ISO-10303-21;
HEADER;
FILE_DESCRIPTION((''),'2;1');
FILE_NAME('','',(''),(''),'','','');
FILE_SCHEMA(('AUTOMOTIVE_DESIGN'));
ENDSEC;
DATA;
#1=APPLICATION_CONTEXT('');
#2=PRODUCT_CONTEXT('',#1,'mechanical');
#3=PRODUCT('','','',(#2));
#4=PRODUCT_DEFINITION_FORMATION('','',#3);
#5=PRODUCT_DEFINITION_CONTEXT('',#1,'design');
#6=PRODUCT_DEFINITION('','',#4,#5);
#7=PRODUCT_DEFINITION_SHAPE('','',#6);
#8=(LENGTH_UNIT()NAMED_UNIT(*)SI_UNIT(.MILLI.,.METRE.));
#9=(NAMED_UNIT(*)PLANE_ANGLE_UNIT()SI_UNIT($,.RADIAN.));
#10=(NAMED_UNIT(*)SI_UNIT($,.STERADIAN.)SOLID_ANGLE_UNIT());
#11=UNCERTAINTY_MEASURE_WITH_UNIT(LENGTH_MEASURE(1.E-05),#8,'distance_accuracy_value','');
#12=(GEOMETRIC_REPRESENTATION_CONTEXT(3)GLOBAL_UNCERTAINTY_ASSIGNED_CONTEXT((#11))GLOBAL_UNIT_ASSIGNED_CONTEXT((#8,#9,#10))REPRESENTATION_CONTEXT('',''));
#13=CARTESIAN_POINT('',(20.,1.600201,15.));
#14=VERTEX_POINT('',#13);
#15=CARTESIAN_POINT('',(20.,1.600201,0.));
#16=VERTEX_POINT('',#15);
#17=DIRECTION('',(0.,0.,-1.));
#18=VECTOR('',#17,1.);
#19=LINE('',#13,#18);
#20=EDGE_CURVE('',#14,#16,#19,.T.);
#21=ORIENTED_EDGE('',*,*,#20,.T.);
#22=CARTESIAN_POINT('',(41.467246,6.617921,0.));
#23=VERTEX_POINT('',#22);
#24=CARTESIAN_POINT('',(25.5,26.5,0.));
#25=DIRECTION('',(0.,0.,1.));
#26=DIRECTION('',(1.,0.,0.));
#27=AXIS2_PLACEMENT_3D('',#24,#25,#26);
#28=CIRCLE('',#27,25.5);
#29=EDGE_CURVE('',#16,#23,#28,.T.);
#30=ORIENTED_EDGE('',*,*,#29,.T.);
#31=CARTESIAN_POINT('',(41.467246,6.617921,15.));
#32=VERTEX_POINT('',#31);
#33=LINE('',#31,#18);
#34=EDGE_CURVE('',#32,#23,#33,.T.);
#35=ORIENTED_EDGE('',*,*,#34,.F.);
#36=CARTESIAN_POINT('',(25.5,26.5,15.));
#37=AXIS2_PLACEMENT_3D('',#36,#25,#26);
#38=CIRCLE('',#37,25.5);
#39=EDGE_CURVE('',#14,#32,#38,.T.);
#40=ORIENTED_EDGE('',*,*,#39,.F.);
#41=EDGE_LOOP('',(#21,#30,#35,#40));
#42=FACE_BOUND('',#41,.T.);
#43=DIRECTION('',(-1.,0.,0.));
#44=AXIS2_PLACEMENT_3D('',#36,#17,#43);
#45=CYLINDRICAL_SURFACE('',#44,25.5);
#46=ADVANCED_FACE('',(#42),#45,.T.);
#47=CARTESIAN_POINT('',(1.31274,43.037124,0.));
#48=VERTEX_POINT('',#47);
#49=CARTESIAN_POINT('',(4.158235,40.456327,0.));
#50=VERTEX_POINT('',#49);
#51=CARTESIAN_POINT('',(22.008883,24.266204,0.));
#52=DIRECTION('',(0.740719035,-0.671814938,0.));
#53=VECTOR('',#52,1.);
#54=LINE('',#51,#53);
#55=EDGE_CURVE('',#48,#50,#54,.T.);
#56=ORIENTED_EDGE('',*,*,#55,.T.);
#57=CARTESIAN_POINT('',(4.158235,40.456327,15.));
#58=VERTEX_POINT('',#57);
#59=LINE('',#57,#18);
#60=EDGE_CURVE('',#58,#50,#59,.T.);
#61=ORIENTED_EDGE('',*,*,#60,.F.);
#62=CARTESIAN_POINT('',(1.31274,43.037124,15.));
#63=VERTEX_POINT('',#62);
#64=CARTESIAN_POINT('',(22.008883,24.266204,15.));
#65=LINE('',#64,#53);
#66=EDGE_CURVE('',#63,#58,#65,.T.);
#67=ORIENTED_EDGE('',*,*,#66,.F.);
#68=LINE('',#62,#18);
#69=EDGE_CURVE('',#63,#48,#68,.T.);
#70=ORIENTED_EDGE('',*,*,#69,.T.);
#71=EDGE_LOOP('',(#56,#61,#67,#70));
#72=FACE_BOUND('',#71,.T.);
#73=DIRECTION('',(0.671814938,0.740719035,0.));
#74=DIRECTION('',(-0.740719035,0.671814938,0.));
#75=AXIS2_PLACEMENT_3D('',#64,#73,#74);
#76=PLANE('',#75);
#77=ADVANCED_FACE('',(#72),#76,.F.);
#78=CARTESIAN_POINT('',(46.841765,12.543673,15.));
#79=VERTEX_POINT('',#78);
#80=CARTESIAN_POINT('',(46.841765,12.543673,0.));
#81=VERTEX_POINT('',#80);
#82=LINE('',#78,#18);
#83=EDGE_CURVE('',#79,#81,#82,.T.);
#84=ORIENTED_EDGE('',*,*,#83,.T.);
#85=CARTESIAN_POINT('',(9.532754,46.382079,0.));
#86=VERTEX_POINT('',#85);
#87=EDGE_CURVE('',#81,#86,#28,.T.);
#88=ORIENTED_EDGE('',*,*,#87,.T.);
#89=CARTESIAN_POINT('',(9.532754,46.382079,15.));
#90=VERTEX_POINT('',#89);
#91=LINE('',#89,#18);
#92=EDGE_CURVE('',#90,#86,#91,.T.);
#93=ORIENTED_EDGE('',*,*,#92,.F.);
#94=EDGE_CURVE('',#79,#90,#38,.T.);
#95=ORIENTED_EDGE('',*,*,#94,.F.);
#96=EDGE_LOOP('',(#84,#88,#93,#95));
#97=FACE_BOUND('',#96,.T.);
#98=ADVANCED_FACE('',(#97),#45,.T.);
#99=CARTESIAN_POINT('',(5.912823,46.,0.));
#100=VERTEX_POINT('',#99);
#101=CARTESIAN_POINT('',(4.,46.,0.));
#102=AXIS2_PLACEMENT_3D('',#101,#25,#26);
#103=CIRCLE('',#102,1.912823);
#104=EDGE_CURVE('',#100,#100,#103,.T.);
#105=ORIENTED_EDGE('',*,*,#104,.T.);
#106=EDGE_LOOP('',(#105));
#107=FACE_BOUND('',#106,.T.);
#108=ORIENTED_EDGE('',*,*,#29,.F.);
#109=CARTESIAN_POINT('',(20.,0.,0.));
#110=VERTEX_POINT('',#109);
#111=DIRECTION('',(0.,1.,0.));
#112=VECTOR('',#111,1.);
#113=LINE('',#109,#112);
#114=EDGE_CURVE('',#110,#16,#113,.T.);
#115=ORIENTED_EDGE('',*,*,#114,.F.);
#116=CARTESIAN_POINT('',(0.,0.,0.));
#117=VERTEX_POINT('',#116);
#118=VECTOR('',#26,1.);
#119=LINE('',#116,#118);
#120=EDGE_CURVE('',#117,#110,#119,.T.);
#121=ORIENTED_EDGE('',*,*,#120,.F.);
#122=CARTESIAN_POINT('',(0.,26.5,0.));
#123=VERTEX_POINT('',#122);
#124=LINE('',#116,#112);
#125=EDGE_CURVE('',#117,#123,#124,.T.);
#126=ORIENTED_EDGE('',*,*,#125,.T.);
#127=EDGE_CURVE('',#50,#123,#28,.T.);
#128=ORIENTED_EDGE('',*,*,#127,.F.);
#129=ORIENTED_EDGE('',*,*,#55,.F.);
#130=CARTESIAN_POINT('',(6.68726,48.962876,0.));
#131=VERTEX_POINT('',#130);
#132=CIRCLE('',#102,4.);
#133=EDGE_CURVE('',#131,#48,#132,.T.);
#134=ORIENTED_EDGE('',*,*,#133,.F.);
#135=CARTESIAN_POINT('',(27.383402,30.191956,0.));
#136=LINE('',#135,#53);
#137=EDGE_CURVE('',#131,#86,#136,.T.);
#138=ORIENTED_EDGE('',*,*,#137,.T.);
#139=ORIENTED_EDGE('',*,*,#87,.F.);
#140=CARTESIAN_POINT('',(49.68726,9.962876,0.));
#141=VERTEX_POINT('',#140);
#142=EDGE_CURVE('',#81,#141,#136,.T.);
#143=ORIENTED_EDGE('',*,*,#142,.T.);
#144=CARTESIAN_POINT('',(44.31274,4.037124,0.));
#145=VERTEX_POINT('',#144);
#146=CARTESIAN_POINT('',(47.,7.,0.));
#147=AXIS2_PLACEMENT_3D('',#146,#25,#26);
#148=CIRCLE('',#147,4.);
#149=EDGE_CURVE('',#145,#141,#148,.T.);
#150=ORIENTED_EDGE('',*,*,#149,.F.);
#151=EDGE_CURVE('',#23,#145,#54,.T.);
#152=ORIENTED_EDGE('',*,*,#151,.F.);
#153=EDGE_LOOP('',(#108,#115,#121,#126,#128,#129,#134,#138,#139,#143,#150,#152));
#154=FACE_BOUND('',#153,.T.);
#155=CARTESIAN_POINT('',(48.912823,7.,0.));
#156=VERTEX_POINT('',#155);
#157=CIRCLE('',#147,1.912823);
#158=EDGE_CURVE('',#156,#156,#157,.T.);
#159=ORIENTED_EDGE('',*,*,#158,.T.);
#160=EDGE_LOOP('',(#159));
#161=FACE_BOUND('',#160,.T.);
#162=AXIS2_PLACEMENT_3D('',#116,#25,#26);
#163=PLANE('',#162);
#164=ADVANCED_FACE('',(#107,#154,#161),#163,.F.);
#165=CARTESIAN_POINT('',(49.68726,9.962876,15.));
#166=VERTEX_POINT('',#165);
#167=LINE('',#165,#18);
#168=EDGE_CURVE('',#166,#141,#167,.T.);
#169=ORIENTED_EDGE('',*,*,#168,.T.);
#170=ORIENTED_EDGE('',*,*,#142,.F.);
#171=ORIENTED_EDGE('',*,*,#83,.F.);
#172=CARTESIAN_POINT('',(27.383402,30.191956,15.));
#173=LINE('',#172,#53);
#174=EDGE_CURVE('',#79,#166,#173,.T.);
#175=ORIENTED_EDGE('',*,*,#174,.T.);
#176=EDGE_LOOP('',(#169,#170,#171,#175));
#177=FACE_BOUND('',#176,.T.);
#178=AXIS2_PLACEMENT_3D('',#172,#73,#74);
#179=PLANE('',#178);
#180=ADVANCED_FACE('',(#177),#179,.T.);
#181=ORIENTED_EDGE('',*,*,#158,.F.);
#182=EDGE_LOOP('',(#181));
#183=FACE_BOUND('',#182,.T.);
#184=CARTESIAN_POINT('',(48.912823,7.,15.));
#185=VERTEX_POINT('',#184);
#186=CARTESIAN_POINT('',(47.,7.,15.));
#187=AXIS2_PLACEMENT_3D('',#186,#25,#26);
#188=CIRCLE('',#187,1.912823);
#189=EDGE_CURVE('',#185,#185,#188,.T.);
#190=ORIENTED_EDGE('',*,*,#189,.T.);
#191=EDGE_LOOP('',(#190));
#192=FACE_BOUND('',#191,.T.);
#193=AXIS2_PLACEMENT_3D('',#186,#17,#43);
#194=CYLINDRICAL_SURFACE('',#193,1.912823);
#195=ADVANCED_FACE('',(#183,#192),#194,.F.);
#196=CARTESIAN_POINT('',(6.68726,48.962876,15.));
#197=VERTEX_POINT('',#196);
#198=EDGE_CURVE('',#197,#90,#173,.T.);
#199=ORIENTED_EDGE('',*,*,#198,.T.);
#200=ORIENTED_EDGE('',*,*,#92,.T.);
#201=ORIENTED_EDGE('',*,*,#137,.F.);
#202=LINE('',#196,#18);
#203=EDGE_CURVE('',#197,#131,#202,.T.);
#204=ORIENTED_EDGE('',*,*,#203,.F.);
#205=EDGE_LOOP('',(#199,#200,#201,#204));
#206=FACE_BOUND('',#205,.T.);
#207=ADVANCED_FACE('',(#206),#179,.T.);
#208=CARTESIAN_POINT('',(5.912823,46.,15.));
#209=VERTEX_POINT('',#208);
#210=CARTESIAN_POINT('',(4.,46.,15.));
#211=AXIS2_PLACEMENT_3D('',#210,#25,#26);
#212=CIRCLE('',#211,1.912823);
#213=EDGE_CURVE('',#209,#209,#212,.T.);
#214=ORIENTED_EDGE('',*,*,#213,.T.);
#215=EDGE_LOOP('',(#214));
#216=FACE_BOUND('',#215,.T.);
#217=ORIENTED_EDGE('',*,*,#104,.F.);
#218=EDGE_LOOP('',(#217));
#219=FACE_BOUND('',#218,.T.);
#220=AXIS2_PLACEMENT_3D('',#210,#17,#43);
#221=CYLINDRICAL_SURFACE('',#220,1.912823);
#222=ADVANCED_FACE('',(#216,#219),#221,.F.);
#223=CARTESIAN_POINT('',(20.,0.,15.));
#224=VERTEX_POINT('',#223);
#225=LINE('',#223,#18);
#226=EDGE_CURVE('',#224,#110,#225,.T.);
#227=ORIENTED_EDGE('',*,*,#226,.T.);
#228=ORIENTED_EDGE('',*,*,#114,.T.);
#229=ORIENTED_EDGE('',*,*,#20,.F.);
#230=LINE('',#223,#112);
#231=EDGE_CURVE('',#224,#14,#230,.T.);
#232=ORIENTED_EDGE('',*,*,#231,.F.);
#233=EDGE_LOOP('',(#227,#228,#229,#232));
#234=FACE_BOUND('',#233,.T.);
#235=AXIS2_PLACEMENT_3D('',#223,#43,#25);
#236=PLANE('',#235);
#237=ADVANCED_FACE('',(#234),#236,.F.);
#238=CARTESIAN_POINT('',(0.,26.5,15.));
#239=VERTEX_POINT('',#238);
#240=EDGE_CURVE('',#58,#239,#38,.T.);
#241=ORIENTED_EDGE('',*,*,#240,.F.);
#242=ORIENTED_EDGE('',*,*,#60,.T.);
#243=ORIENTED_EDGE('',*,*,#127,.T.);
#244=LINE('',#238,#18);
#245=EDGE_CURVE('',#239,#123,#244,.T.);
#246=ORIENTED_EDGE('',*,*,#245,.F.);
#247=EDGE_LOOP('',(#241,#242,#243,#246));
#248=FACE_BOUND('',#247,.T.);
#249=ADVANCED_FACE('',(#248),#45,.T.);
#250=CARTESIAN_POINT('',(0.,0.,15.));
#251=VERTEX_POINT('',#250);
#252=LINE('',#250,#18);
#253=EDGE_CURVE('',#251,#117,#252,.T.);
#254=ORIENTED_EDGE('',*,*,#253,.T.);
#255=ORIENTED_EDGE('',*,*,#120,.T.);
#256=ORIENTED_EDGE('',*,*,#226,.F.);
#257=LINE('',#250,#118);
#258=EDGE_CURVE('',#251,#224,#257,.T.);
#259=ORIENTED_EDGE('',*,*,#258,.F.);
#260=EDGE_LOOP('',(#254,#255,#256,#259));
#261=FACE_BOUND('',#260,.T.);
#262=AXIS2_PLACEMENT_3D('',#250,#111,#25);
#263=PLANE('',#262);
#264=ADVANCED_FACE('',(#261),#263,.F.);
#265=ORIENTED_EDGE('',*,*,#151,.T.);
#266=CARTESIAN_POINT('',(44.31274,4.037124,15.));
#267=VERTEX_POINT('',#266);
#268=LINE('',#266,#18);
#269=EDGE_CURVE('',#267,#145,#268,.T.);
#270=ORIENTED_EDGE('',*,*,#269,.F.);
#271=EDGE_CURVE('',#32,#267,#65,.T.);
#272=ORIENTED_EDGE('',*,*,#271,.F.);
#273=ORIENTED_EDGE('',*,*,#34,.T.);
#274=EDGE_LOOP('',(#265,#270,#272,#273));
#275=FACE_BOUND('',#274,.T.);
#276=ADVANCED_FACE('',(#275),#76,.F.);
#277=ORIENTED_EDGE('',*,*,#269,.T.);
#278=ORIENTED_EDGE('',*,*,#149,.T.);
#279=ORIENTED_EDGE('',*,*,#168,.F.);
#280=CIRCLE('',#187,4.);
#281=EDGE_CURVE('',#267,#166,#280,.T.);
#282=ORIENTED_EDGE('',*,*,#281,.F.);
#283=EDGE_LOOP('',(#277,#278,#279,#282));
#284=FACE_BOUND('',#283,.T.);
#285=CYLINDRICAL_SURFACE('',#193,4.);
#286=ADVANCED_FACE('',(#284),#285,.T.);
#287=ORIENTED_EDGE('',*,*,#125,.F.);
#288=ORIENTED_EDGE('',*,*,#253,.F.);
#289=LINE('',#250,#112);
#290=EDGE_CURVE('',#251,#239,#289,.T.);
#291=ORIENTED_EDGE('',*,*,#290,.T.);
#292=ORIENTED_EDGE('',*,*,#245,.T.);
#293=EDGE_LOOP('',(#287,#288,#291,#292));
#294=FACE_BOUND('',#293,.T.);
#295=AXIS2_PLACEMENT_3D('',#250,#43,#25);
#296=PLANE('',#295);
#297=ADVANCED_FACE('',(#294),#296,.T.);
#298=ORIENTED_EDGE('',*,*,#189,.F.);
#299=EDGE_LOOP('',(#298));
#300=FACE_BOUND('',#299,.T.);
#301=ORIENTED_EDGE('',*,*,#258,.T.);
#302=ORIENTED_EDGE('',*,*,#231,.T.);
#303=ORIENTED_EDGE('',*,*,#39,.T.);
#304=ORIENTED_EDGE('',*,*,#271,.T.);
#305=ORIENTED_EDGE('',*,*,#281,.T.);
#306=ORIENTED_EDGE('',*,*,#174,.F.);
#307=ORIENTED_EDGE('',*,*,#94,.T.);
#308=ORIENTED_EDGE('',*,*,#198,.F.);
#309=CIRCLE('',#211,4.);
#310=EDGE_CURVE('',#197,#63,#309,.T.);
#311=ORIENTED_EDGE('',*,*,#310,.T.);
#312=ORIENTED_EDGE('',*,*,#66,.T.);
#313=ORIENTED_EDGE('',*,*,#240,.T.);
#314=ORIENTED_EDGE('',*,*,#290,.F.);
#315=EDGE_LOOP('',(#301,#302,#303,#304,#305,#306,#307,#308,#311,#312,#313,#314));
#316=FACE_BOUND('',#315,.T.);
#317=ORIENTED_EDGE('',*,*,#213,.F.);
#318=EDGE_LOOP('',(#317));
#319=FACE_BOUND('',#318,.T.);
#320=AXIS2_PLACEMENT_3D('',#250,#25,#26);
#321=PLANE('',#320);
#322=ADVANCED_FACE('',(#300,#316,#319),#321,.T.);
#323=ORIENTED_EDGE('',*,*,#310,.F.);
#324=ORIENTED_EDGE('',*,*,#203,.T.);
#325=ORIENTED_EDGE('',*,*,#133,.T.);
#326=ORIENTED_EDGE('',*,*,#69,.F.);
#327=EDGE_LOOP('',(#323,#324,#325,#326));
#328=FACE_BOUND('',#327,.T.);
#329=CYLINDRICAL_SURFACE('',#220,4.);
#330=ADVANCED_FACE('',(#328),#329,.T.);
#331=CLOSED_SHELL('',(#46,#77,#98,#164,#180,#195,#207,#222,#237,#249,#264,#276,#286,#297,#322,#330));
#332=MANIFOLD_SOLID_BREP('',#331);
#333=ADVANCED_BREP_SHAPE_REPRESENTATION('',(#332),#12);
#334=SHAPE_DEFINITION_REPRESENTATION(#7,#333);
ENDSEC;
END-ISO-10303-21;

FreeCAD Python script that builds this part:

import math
import FreeCAD as App
import Part
import Sketcher
from FreeCAD import Vector

doc = App.newDocument("Part")
body = doc.addObject("PartDesign::Body", "Body")

# Sketch on XY plane
sketch1 = body.newObject("Sketcher::SketchObject", "Sketch")
sketch1.AttachmentSupport = (doc.getObject("XY_Plane"), [""])
sketch1.MapMode = "FlatFace"
sketch1.addGeometry([
    Part.ArcOfCircle(Part.Circle(Vector(47, 7, 0), Vector(0, 0, 1), 4), math.radians(-132), math.radians(48)),  # 0
    Part.LineSegment(Vector(49.7, 10, 0), Vector(46.8, 12.5, 0)),  # 1
    Part.ArcOfCircle(Part.Circle(Vector(25.5, 26.5, 0), Vector(0, 0, 1), 25.5), math.radians(-33), math.radians(129)),  # 2
    Part.LineSegment(Vector(9.5, 46.4, 0), Vector(6.7, 49, 0)),  # 3
    Part.ArcOfCircle(Part.Circle(Vector(4, 46, 0), Vector(0, 0, 1), 4), math.radians(48), math.radians(228)),  # 4
    Part.LineSegment(Vector(1.3, 43, 0), Vector(4.2, 40.5, 0)),  # 5
    Part.ArcOfCircle(Part.Circle(Vector(25.5, 26.5, 0), Vector(0, 0, 1), 25.5), math.radians(147), math.radians(180)),  # 6
    Part.LineSegment(Vector(0, 26.5, 0), Vector(0, 0, 0)),  # 7
    Part.LineSegment(Vector(0, 0, 0), Vector(20, 0, 0)),  # 8
    Part.LineSegment(Vector(20, 0, 0), Vector(20, 1.6, 0)),  # 9
    Part.ArcOfCircle(Part.Circle(Vector(25.5, 26.5, 0), Vector(0, 0, 1), 25.5), math.radians(-102), math.radians(-51)),  # 10
    Part.LineSegment(Vector(41.5, 6.6, 0), Vector(44.3, 4, 0)),  # 11
    Part.Circle(Vector(47, 7, 0), Vector(0, 0, 1), 1.9),  # 12
    Part.Circle(Vector(4, 46, 0), Vector(0, 0, 1), 1.9),  # 13
], False)
sketch1.addConstraint([
    Sketcher.Constraint("Tangent", 0, 2, 1, 1),
    Sketcher.Constraint("Coincident", 1, 2, 2, 1),
    Sketcher.Constraint("Coincident", 2, 2, 3, 1),
    Sketcher.Constraint("Tangent", 3, 2, 4, 1),
    Sketcher.Constraint("Tangent", 4, 2, 5, 1),
    Sketcher.Constraint("Coincident", 5, 2, 6, 1),
    Sketcher.Constraint("Tangent", 6, 2, 7, 1),
    Sketcher.Constraint("Coincident", 7, 2, 8, 1),
    Sketcher.Constraint("Coincident", 8, 2, 9, 1),
    Sketcher.Constraint("Coincident", 9, 2, 10, 1),
    Sketcher.Constraint("Coincident", 10, 2, 11, 1),
    Sketcher.Constraint("Tangent", 11, 2, 0, 1),
    Sketcher.Constraint("Vertical", 7),
    Sketcher.Constraint("Horizontal", 8),
    Sketcher.Constraint("Vertical", 9),
    Sketcher.Constraint("Coincident", 7, 2, -1, 1),
    Sketcher.Constraint("Coincident", 6, 3, 2, 3),
    Sketcher.Constraint("Coincident", 10, 3, 2, 3),
    Sketcher.Constraint("Coincident", 12, 3, 0, 3),
    Sketcher.Constraint("Coincident", 13, 3, 4, 3),
    Sketcher.Constraint("Equal", 0, 4),
    Sketcher.Constraint("Equal", 2, 6),
    Sketcher.Constraint("Equal", 6, 10),
    Sketcher.Constraint("Equal", 12, 13),
    Sketcher.Constraint("Parallel", 1, 3),
    Sketcher.Constraint("Parallel", 3, 5),
    Sketcher.Constraint("Parallel", 5, 11),
    Sketcher.Constraint("Equal", 1, 3),
    Sketcher.Constraint("Equal", 3, 5),
    Sketcher.Constraint("Equal", 5, 11),
    Sketcher.Constraint("Radius", 0, 4.0),
    Sketcher.Constraint("Radius", 2, 25.5),
    Sketcher.Constraint("DistanceX", 8, 1, 8, 2, 20.0),
    Sketcher.Constraint("DistanceY", 7, 2, 7, 1, 26.5),
    Sketcher.Constraint("DistanceX", -1, 1, 0, 3, 47.0),
    Sketcher.Constraint("DistanceY", -1, 1, 0, 3, 7.0),
    Sketcher.Constraint("Diameter", 12, 3.825646),
])
pad1 = body.newObject("PartDesign::Pad", "Pad")
pad1.Profile = sketch1
pad1.Length = 15

doc.recompute()
